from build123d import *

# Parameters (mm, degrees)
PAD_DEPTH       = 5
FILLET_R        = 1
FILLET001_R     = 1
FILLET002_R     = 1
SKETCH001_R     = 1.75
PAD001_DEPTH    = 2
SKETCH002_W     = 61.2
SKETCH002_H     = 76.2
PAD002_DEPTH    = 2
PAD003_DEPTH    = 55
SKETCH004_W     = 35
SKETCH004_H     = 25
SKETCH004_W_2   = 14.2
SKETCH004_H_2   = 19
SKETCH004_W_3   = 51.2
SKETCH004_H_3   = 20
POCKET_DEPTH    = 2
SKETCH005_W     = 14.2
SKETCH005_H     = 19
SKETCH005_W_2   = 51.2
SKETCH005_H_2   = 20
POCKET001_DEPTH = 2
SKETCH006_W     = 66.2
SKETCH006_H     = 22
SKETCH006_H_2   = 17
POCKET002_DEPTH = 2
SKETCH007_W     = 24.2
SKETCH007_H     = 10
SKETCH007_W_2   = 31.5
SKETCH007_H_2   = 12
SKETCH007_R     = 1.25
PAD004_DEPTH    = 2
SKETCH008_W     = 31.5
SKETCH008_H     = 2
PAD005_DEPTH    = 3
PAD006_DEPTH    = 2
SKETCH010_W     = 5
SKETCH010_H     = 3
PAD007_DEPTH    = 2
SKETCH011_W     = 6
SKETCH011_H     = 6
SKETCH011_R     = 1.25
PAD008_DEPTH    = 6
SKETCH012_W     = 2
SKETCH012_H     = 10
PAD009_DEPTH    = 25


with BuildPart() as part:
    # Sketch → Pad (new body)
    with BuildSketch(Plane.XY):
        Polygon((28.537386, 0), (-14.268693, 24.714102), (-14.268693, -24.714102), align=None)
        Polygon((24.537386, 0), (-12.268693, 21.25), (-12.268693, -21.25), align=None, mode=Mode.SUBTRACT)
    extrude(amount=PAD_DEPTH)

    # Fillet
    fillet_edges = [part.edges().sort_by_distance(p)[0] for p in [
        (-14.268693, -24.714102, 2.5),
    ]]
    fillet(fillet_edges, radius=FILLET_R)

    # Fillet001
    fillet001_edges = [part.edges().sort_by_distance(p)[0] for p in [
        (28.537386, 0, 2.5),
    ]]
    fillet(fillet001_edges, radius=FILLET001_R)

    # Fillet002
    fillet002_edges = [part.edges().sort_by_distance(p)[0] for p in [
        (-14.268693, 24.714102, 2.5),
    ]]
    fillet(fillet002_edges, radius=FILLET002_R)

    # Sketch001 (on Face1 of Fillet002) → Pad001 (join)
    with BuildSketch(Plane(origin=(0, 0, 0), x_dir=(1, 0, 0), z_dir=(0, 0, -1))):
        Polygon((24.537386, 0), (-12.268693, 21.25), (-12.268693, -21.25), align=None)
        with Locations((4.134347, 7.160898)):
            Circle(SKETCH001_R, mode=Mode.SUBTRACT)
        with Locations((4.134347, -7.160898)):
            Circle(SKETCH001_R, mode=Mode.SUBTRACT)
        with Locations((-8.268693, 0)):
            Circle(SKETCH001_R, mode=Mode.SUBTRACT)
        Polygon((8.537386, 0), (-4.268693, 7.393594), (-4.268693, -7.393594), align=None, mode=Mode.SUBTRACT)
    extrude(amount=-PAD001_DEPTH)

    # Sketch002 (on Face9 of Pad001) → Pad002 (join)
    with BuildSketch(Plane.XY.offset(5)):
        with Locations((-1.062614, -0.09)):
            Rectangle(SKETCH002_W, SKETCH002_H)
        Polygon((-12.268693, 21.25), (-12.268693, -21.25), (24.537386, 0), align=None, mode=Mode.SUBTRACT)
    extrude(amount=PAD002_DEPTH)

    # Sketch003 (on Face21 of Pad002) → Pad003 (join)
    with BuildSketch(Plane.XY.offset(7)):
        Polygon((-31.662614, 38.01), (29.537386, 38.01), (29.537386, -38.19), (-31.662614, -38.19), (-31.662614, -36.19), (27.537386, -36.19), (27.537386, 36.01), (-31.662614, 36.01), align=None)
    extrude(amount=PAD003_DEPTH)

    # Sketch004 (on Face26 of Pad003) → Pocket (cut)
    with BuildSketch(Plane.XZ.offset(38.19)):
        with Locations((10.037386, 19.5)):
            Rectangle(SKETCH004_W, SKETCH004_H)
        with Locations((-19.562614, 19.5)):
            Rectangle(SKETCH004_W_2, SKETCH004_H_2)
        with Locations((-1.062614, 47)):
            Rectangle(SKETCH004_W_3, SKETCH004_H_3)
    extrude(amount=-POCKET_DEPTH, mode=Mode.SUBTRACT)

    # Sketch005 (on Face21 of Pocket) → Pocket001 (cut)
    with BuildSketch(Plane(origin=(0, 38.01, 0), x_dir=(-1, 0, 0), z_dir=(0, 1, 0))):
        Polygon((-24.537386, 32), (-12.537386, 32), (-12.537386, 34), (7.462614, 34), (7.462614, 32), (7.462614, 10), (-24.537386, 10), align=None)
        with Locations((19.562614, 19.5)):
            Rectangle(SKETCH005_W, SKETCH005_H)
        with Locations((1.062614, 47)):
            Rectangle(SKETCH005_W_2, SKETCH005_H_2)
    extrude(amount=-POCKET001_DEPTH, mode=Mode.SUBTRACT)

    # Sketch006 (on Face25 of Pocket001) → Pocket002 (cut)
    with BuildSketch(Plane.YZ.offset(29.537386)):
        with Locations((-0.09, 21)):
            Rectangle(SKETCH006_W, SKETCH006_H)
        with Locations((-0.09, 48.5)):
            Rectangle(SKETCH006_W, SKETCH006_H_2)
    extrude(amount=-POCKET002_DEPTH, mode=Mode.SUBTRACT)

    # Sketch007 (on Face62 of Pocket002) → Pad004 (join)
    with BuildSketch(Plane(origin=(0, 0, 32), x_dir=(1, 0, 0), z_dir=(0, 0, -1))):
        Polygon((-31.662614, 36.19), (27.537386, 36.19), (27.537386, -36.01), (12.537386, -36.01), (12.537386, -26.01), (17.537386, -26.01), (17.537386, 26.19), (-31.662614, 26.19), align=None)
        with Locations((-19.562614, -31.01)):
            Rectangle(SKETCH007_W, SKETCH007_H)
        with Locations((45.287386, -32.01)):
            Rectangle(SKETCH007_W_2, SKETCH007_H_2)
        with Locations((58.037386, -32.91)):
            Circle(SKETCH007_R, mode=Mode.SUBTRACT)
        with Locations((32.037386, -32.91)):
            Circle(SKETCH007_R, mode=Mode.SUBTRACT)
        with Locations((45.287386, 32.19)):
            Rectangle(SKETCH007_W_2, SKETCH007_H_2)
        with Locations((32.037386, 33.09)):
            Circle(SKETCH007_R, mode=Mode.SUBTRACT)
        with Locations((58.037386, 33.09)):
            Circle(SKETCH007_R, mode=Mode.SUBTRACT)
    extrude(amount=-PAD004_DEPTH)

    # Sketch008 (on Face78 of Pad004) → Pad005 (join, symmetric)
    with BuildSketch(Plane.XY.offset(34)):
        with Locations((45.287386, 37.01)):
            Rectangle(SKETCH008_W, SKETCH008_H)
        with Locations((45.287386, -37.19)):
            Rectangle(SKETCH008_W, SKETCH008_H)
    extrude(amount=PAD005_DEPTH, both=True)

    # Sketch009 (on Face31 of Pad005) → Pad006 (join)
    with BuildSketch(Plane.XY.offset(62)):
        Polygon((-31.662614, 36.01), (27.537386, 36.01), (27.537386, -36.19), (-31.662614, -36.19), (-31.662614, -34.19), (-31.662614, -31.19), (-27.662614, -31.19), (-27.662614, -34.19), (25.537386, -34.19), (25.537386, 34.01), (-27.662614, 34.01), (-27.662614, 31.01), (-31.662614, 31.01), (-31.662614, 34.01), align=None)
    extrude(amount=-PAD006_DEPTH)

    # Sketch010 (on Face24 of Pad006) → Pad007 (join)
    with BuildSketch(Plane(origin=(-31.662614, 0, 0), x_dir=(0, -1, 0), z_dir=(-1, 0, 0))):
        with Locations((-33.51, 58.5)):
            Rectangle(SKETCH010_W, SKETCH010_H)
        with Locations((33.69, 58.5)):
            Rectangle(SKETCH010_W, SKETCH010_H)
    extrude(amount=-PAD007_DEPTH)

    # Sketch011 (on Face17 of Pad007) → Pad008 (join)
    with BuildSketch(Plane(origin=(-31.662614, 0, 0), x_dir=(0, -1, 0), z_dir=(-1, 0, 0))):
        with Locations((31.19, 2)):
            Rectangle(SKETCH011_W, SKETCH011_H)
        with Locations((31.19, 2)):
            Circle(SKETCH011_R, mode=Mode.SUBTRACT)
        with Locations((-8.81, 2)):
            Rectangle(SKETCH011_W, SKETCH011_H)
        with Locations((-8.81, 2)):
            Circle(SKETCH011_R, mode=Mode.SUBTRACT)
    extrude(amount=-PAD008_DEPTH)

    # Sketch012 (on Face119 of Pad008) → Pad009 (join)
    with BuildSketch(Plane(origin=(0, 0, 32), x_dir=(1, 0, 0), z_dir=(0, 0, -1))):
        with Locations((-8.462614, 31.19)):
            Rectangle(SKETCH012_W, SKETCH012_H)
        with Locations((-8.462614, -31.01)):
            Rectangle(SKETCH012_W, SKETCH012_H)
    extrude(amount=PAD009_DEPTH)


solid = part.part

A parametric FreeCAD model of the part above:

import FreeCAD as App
import Part
import Sketcher
from FreeCAD import Vector
Q = App.Units.Quantity


def edges_at(feature, points):
    """Names of the edges that pass closest to the given points."""
    edges = feature.Shape.Edges
    near = lambda p: min(range(len(edges)), key=lambda i: edges[i].distToShape(Part.Vertex(*p))[0])
    return sorted({f"Edge{near(p) + 1}" for p in points})


def add_polygon(sketch, points):
    """Adds a closed chain of lines whose ends are joined by coincident constraints."""
    first, n = sketch.GeometryCount, len(points)
    for a, b in zip(points, points[1:] + points[:1]):
        sketch.addGeometry(Part.LineSegment(App.Vector(*a, 0), App.Vector(*b, 0)), False)
    for i in range(n):
        sketch.addConstraint(Sketcher.Constraint("Coincident", first + i, 2, first + (i + 1) % n, 1))

doc = App.newDocument("Part")
body = doc.addObject("PartDesign::Body", "Body")

# Sketch on XY plane
sketch1 = body.newObject("Sketcher::SketchObject", "Sketch")
sketch1.AttachmentSupport = (doc.getObject("XY_Plane"), [""])
sketch1.MapMode = "FlatFace"
add_polygon(sketch1, [(29, 0), (-14, 25), (-14, -25)])  # lines 0-2
add_polygon(sketch1, [(-12, 21), (25, 0), (-12, -21)])  # lines 3-5
sketch1.addConstraint([
    Sketcher.Constraint("Vertical", 1),
    Sketcher.Constraint("Vertical", 5),
    Sketcher.Constraint("PointOnObject", 2, 2, -1),
    Sketcher.Constraint("PointOnObject", 3, 2, -1),
    Sketcher.Constraint("Parallel", 0, 3),
    Sketcher.Constraint("Parallel", 2, 4),
    Sketcher.Constraint("Equal", 0, 2),
    Sketcher.Constraint("Angle", 0, Q("149.999999 deg")),
    Sketcher.Constraint("DistanceY", 5, 1, 5, 2, Q("42.5 mm")),
    Sketcher.Constraint("DistanceX", 3, 2, 2, 2, Q("4 mm")),
    Sketcher.Constraint("DistanceX", 1, 2, 4, 2, Q("2 mm")),
    Sketcher.Constraint("DistanceX", 0, 2, -1, 1, Q("14.268693 mm")),
])
pad1 = body.newObject("PartDesign::Pad", "Pad")
pad1.Profile = sketch1
pad1.Length = 5
doc.recompute()

fillet = body.newObject("PartDesign::Fillet", "Fillet")
fillet.Base = (pad1, edges_at(pad1, [(-14.269, -24.714, 2.5)]))
fillet.Radius = 1
doc.recompute()

fillet2 = body.newObject("PartDesign::Fillet", "Fillet001")
fillet2.Base = (fillet, edges_at(fillet, [(28.537, 0, 2.5)]))
fillet2.Radius = 1
doc.recompute()

fillet3 = body.newObject("PartDesign::Fillet", "Fillet002")
fillet3.Base = (fillet2, edges_at(fillet2, [(-14.269, 24.714, 2.5)]))
fillet3.Radius = 1

# Sketch on XY plane
sketch2 = body.newObject("Sketcher::SketchObject", "Sketch001")
sketch2.AttachmentSupport = (doc.getObject("XY_Plane"), [""])
sketch2.MapMode = "FlatFace"
add_polygon(sketch2, [(24.5, 0), (-12.3, -21.2), (-12.3, 21.2)])  # lines 0-2
sketch2.addGeometry(Part.Circle(Vector(4.1, 7.2, 0), Vector(0, 0, 1), 1.8), False)  # 3
sketch2.addGeometry(Part.Circle(Vector(-8.3, 0, 0), Vector(0, 0, 1), 1.8), False)  # 4
add_polygon(sketch2, [(-4.3, -7.4), (8.5, 0), (-4.3, 7.4)])  # lines 5-7
sketch2.addGeometry(Part.Circle(Vector(4.1, -7.2, 0), Vector(0, 0, 1), 1.8), False)  # 8
sketch2.addConstraint([
    Sketcher.Constraint("Vertical", 1),
    Sketcher.Constraint("Vertical", 7),
    Sketcher.Constraint("Equal", 3, 4),
    Sketcher.Constraint("Equal", 4, 8),
    Sketcher.Constraint("Symmetric", 3, 3, 8, 3, -1),
    Sketcher.Constraint("PointOnObject", 4, 3, -1),
    Sketcher.Constraint("PointOnObject", 2, 2, -1),
    Sketcher.Constraint("PointOnObject", 5, 2, -1),
    Sketcher.Constraint("Parallel", 0, 5),
    Sketcher.Constraint("Parallel", 2, 6),
    Sketcher.Constraint("Equal", 0, 2),
    Sketcher.Constraint("Diameter", 3, Q("3.5 mm")),
    Sketcher.Constraint("Angle", 0, Q("-150 deg")),
    Sketcher.Constraint("DistanceY", 1, 1, 1, 2, Q("42.5 mm")),
    Sketcher.Constraint("DistanceX", 0, 2, 4, 3, Q("4 mm")),
    Sketcher.Constraint("DistanceX", 5, 2, 2, 2, Q("16 mm")),
    Sketcher.Constraint("DistanceX", 4, 3, 6, 2, Q("4 mm")),
    Sketcher.Constraint("DistanceY", -1, 1, 3, 3, Q("7.160898 mm")),
    Sketcher.Constraint("DistanceX", 4, 3, 3, 3, Q("12.40304 mm")),
    Sketcher.Constraint("DistanceX", -1, 1, 3, 3, Q("4.134347 mm")),
])
pad2 = body.newObject("PartDesign::Pad", "Pad001")
pad2.Profile = sketch2
pad2.Length = 2

# Sketch on XY plane
sketch3 = body.newObject("Sketcher::SketchObject", "Sketch002")
sketch3.AttachmentSupport = (doc.getObject("XY_Plane"), [""])
sketch3.MapMode = "FlatFace"
sketch3.AttachmentOffset = App.Placement(Vector(0, 0, 5), App.Rotation())
add_polygon(sketch3, [(-32, 38), (-32, -38), (30, -38), (30, 38)])  # lines 0-3
add_polygon(sketch3, [(-12, -21), (-12, 21), (25, 0)])  # lines 4-6
sketch3.addConstraint([
    Sketcher.Constraint("Vertical", 0),
    Sketcher.Constraint("Horizontal", 1),
    Sketcher.Constraint("Vertical", 2),
    Sketcher.Constraint("Horizontal", 3),
    Sketcher.Constraint("Vertical", 4),
    Sketcher.Constraint("PointOnObject", 5, 2, -1),
    Sketcher.Constraint("Equal", 5, 6),
    Sketcher.Constraint("Angle", 5, Q("-30 deg")),
    Sketcher.Constraint("DistanceX", 1, 1, 1, 2, Q("61.2 mm")),
    Sketcher.Constraint("DistanceY", 0, 2, 0, 1, Q("76.2 mm")),
    Sketcher.Constraint("DistanceY", 4, 1, 4, 2, Q("42.5 mm")),
    Sketcher.Constraint("DistanceX", 5, 2, 2, 2, Q("5 mm")),
    Sketcher.Constraint("DistanceY", 0, 2, -1, 1, Q("38.19 mm")),
    Sketcher.Constraint("DistanceX", 0, 2, -1, 1, Q("31.662614 mm")),
])
pad3 = body.newObject("PartDesign::Pad", "Pad002")
pad3.Profile = sketch3
pad3.Length = 2

# Sketch on XY plane
sketch4 = body.newObject("Sketcher::SketchObject", "Sketch003")
sketch4.AttachmentSupport = (doc.getObject("XY_Plane"), [""])
sketch4.MapMode = "FlatFace"
sketch4.AttachmentOffset = App.Placement(Vector(0, 0, 7), App.Rotation())
add_polygon(sketch4, [(29.5, 38), (-31.7, 38), (-31.7, 36), (27.5, 36), (27.5, -36.2), (-31.7, -36.2), (-31.7, -38.2), (29.5, -38.2)])  # lines 0-7
sketch4.addConstraint([
    Sketcher.Constraint("Horizontal", 0),
    Sketcher.Constraint("Vertical", 1),
    Sketcher.Constraint("Horizontal", 2),
    Sketcher.Constraint("Vertical", 3),
    Sketcher.Constraint("Horizontal", 4),
    Sketcher.Constraint("Vertical", 5),
    Sketcher.Constraint("Horizontal", 6),
    Sketcher.Constraint("Vertical", 7),
    Sketcher.Constraint("Vertical", 1, 2, 4, 2),
    Sketcher.Constraint("Equal", 1, 5),
    Sketcher.Constraint("DistanceY", 1, 2, 1, 1, Q("2 mm")),
    Sketcher.Constraint("DistanceX", 0, 2, 0, 1, Q("61.2 mm")),
    Sketcher.Constraint("DistanceX", 2, 1, 2, 2, Q("59.2 mm")),
    Sketcher.Constraint("DistanceY", 3, 2, 3, 1, Q("72.2 mm")),
    Sketcher.Constraint("DistanceY", -1, 1, 0, 2, Q("38.01 mm")),
    Sketcher.Constraint("DistanceX", 0, 2, -1, 1, Q("31.662614 mm")),
])
pad4 = body.newObject("PartDesign::Pad", "Pad003")
pad4.Profile = sketch4
pad4.Length = 55

# Sketch on XZ plane
sketch5 = body.newObject("Sketcher::SketchObject", "Sketch004")
sketch5.AttachmentSupport = (doc.getObject("XZ_Plane"), [""])
sketch5.MapMode = "FlatFace"
sketch5.AttachmentOffset = App.Placement(Vector(0, 0, 38.19), App.Rotation())
add_polygon(sketch5, [(-7, 32), (-7, 7), (28, 7), (28, 32)])  # lines 0-3
add_polygon(sketch5, [(-27, 29), (-27, 10), (-12, 10), (-12, 29)])  # lines 4-7
add_polygon(sketch5, [(-27, 57), (-27, 37), (25, 37), (25, 57)])  # lines 8-11
sketch5.addConstraint([
    Sketcher.Constraint("Vertical", 0),
    Sketcher.Constraint("Horizontal", 1),
    Sketcher.Constraint("Vertical", 2),
    Sketcher.Constraint("Horizontal", 3),
    Sketcher.Constraint("Vertical", 4),
    Sketcher.Constraint("Horizontal", 5),
    Sketcher.Constraint("Vertical", 6),
    Sketcher.Constraint("Horizontal", 7),
    Sketcher.Constraint("Vertical", 8),
    Sketcher.Constraint("Horizontal", 9),
    Sketcher.Constraint("Vertical", 10),
    Sketcher.Constraint("Horizontal", 11),
    Sketcher.Constraint("Vertical", 7, 2, 8, 2),
    Sketcher.Constraint("DistanceX", 1, 1, 1, 2, Q("35 mm")),
    Sketcher.Constraint("DistanceY", 0, 2, 0, 1, Q("25 mm")),
    Sketcher.Constraint("DistanceY", 4, 2, 4, 1, Q("19 mm")),
    Sketcher.Constraint("DistanceY", 8, 2, 8, 1, Q("20 mm")),
    Sketcher.Constraint("DistanceX", 5, 1, 5, 2, Q("14.2 mm")),
    Sketcher.Constraint("DistanceX", 9, 1, 9, 2, Q("51.2 mm")),
    Sketcher.Constraint("DistanceY", -1, 1, 0, 2, Q("7 mm")),
    Sketcher.Constraint("DistanceY", -1, 1, 4, 2, Q("10 mm")),
    Sketcher.Constraint("DistanceY", -1, 1, 8, 2, Q("37 mm")),
    Sketcher.Constraint("DistanceX", 5, 2, 0, 2, Q("5 mm")),
    Sketcher.Constraint("DistanceX", 0, 2, -1, 1, Q("7.462614 mm")),
])
pocket1 = body.newObject("PartDesign::Pocket", "Pocket")
pocket1.Profile = sketch5
pocket1.Length = 2

# Sketch on XZ plane
sketch6 = body.newObject("Sketcher::SketchObject", "Sketch005")
sketch6.AttachmentSupport = (doc.getObject("XZ_Plane"), [""])
sketch6.MapMode = "FlatFace"
sketch6.AttachmentOffset = App.Placement(Vector(0, 0, -38.01), App.Rotation())
add_polygon(sketch6, [(12.5, 32), (24.5, 32), (24.5, 10), (-7.5, 10), (-7.5, 34), (12.5, 34)])  # lines 0-5
add_polygon(sketch6, [(-12.5, 29), (-12.5, 10), (-26.7, 10), (-26.7, 29)])  # lines 6-9
add_polygon(sketch6, [(24.5, 57), (24.5, 37), (-26.7, 37), (-26.7, 57)])  # lines 10-13
sketch6.addConstraint([
    Sketcher.Constraint("Horizontal", 0),
    Sketcher.Constraint("Vertical", 1),
    Sketcher.Constraint("Horizontal", 2),
    Sketcher.Constraint("Vertical", 3),
    Sketcher.Constraint("Horizontal", 4),
    Sketcher.Constraint("Vertical", 5),
    Sketcher.Constraint("Vertical", 6),
    Sketcher.Constraint("Horizontal", 7),
    Sketcher.Constraint("Vertical", 8),
    Sketcher.Constraint("Horizontal", 9),
    Sketcher.Constraint("Vertical", 10),
    Sketcher.Constraint("Horizontal", 11),
    Sketcher.Constraint("Vertical", 12),
    Sketcher.Constraint("Horizontal", 13),
    Sketcher.Constraint("Horizontal", 2, 2, 6, 2),
    Sketcher.Constraint("Vertical", 1, 2, 10, 2),
    Sketcher.Constraint("Vertical", 8, 2, 11, 2),
    Sketcher.Constraint("Equal", 4, 10),
    Sketcher.Constraint("DistanceX", 0, 1, 0, 2, Q("12 mm")),
    Sketcher.Constraint("DistanceX", 2, 2, 2, 1, Q("32 mm")),
    Sketcher.Constraint("DistanceY", 1, 2, 1, 1, Q("22 mm")),
    Sketcher.Constraint("DistanceY", 3, 1, 3, 2, Q("24 mm")),
    Sketcher.Constraint("DistanceY", 6, 2, 6, 1, Q("19 mm")),
    Sketcher.Constraint("DistanceX", 7, 2, 7, 1, Q("14.2 mm")),
    Sketcher.Constraint("DistanceX", 11, 2, 11, 1, Q("51.2 mm")),
    Sketcher.Constraint("DistanceY", -1, 1, 0, 2, Q("32 mm")),
    Sketcher.Constraint("DistanceY", -1, 1, 10, 2, Q("37 mm")),
    Sketcher.Constraint("DistanceX", -1, 1, 0, 2, Q("24.537386 mm")),
])
pocket2 = body.newObject("PartDesign::Pocket", "Pocket001")
pocket2.Profile = sketch6
pocket2.Length = 2
pocket2.Reversed = True

# Sketch on YZ plane
sketch7 = body.newObject("Sketcher::SketchObject", "Sketch006")
sketch7.AttachmentSupport = (doc.getObject("YZ_Plane"), [""])
sketch7.MapMode = "FlatFace"
sketch7.AttachmentOffset = App.Placement(Vector(0, 0, 29.537386), App.Rotation())
add_polygon(sketch7, [(-33, 32), (-33, 10), (33, 10), (33, 32)])  # lines 0-3
add_polygon(sketch7, [(-33, 57), (-33, 40), (33, 40), (33, 57)])  # lines 4-7
sketch7.addConstraint([
    Sketcher.Constraint("Vertical", 0),
    Sketcher.Constraint("Horizontal", 1),
    Sketcher.Constraint("Vertical", 2),
    Sketcher.Constraint("Horizontal", 3),
    Sketcher.Constraint("Vertical", 4),
    Sketcher.Constraint("Horizontal", 5),
    Sketcher.Constraint("Vertical", 6),
    Sketcher.Constraint("Horizontal", 7),
    Sketcher.Constraint("Vertical", 3, 2, 4, 2),
    Sketcher.Constraint("Vertical", 2, 2, 5, 2),
    Sketcher.Constraint("DistanceY", 0, 2, 0, 1, Q("22 mm")),
    Sketcher.Constraint("DistanceY", 4, 2, 4, 1, Q("17 mm")),
    Sketcher.Constraint("DistanceX", 1, 1, 1, 2, Q("66.2 mm")),
    Sketcher.Constraint("DistanceY", -1, 1, 0, 2, Q("10 mm")),
    Sketcher.Constraint("DistanceY", -1, 1, 4, 2, Q("40 mm")),
    Sketcher.Constraint("DistanceX", 0, 2, -1, 1, Q("33.19 mm")),
])
pocket3 = body.newObject("PartDesign::Pocket", "Pocket002")
pocket3.Profile = sketch7
pocket3.Length = 2

# Sketch on XY plane
sketch8 = body.newObject("Sketcher::SketchObject", "Sketch007")
sketch8.AttachmentSupport = (doc.getObject("XY_Plane"), [""])
sketch8.MapMode = "FlatFace"
sketch8.AttachmentOffset = App.Placement(Vector(0, 0, 32), App.Rotation())
add_polygon(sketch8, [(27.5, -36.2), (-31.7, -36.2), (-31.7, -26.2), (17.5, -26.2), (17.5, 26), (12.5, 26), (12.5, 36), (27.5, 36)])  # lines 0-7
add_polygon(sketch8, [(-31.7, 26), (-31.7, 36), (-7.5, 36), (-7.5, 26)])  # lines 8-11
add_polygon(sketch8, [(29.5, 26), (29.5, 38), (61, 38), (61, 26)])  # lines 12-15
sketch8.addGeometry(Part.Circle(Vector(32, 32.9, 0), Vector(0, 0, 1), 1.2), False)  # 16
sketch8.addGeometry(Part.Circle(Vector(58, 32.9, 0), Vector(0, 0, 1), 1.2), False)  # 17
add_polygon(sketch8, [(29.5, -38.2), (29.5, -26.2), (61, -26.2), (61, -38.2)])  # lines 18-21
sketch8.addGeometry(Part.Circle(Vector(32, -33.1, 0), Vector(0, 0, 1), 1.2), False)  # 22
sketch8.addGeometry(Part.Circle(Vector(58, -33.1, 0), Vector(0, 0, 1), 1.2), False)  # 23
sketch8.addConstraint([
    Sketcher.Constraint("Horizontal", 0),
    Sketcher.Constraint("Vertical", 1),
    Sketcher.Constraint("Horizontal", 2),
    Sketcher.Constraint("Vertical", 3),
    Sketcher.Constraint("Horizontal", 4),
    Sketcher.Constraint("Vertical", 5),
    Sketcher.Constraint("Horizontal", 6),
    Sketcher.Constraint("Vertical", 7),
    Sketcher.Constraint("Vertical", 8),
    Sketcher.Constraint("Horizontal", 9),
    Sketcher.Constraint("Vertical", 10),
    Sketcher.Constraint("Horizontal", 11),
    Sketcher.Constraint("Vertical", 12),
    Sketcher.Constraint("Horizontal", 13),
    Sketcher.Constraint("Vertical", 14),
    Sketcher.Constraint("Horizontal", 15),
    Sketcher.Constraint("Vertical", 18),
    Sketcher.Constraint("Horizontal", 19),
    Sketcher.Constraint("Vertical", 20),
    Sketcher.Constraint("Horizontal", 21),
    Sketcher.Constraint("Equal", 16, 17),
    Sketcher.Constraint("Equal", 17, 22),
    Sketcher.Constraint("Equal", 22, 23),
    Sketcher.Constraint("Horizontal", 16, 3, 17, 3),
    Sketcher.Constraint("Horizontal", 22, 3, 23, 3),
    Sketcher.Constraint("Horizontal", 6, 2, 8, 2),
    Sketcher.Constraint("Horizontal", 4, 2, 10, 2),
    Sketcher.Constraint("Horizontal", 11, 2, 14, 2),
    Sketcher.Constraint("Horizontal", 2, 2, 18, 2),
    Sketcher.Constraint("Vertical", 16, 3, 22, 3),
    Sketcher.Constraint("Vertical", 17, 3, 23, 3),
    Sketcher.Constraint("Vertical", 1, 2, 8, 2),
    Sketcher.Constraint("Vertical", 15, 2, 18, 2),
    Sketcher.Constraint("Vertical", 14, 2, 19, 2),
    Sketcher.Constraint("Equal", 1, 5),
    Sketcher.Constraint("Equal", 14, 18),
    Sketcher.Constraint("Diameter", 16, Q("2.5 mm")),
    Sketcher.Constraint("DistanceX", 4, 2, 4, 1, Q("5 mm")),
    Sketcher.Constraint("DistanceX", 6, 1, 6, 2, Q("15 mm")),
    Sketcher.Constraint("DistanceY", 1, 1, 1, 2, Q("10 mm")),
    Sketcher.Constraint("DistanceY", 12, 1, 12, 2, Q("12 mm")),
    Sketcher.Constraint("DistanceX", 0, 2, 0, 1, Q("59.2 mm")),
    Sketcher.Constraint("DistanceX", 9, 1, 9, 2, Q("24.2 mm")),
    Sketcher.Constraint("DistanceX", 13, 1, 13, 2, Q("31.5 mm")),
    Sketcher.Constraint("DistanceY", 3, 1, 3, 2, Q("52.2 mm")),
    Sketcher.Constraint("DistanceX", 16, 3, 17, 3, Q("26 mm")),
    Sketcher.Constraint("DistanceY", 22, 3, 16, 3, Q("66 mm")),
    Sketcher.Constraint("DistanceX", 6, 2, 12, 2, Q("2 mm")),
    Sketcher.Constraint("DistanceX", 17, 3, 13, 2, Q("3 mm")),
    Sketcher.Constraint("DistanceY", 0, 2, 22, 3, Q("3.1 mm")),
    Sketcher.Constraint("DistanceY", -1, 1, 16, 3, Q("32.91 mm")),
    Sketcher.Constraint("DistanceX", -1, 1, 16, 3, Q("32.037386 mm")),
])
pad5 = body.newObject("PartDesign::Pad", "Pad004")
pad5.Profile = sketch8
pad5.Length = 2

# Sketch on XY plane
sketch9 = body.newObject("Sketcher::SketchObject", "Sketch008")
sketch9.AttachmentSupport = (doc.getObject("XY_Plane"), [""])
sketch9.MapMode = "FlatFace"
sketch9.AttachmentOffset = App.Placement(Vector(0, 0, 34), App.Rotation())
add_polygon(sketch9, [(29.5, 38), (29.5, 36), (61, 36), (61, 38)])  # lines 0-3
add_polygon(sketch9, [(29.5, -36.2), (29.5, -38.2), (61, -38.2), (61, -36.2)])  # lines 4-7
sketch9.addConstraint([
    Sketcher.Constraint("Vertical", 0),
    Sketcher.Constraint("Horizontal", 1),
    Sketcher.Constraint("Vertical", 2),
    Sketcher.Constraint("Horizontal", 3),
    Sketcher.Constraint("Vertical", 4),
    Sketcher.Constraint("Horizontal", 5),
    Sketcher.Constraint("Vertical", 6),
    Sketcher.Constraint("Horizontal", 7),
    Sketcher.Constraint("Vertical", 3, 2, 4, 2),
    Sketcher.Constraint("Vertical", 2, 2, 5, 2),
    Sketcher.Constraint("Equal", 2, 4),
    Sketcher.Constraint("DistanceY", 0, 2, 0, 1, Q("2 mm")),
    Sketcher.Constraint("DistanceX", 1, 1, 1, 2, Q("31.5 mm")),
    Sketcher.Constraint("DistanceY", 4, 2, 0, 2, Q("74.2 mm")),
    Sketcher.Constraint("DistanceY", -1, 1, 0, 2, Q("36.01 mm")),
    Sketcher.Constraint("DistanceX", -1, 1, 0, 2, Q("29.537386 mm")),
])
pad6 = body.newObject("PartDesign::Pad", "Pad005")
pad6.Profile = sketch9
pad6.Length = 6
pad6.Midplane = True

# Sketch on XY plane
sketch10 = body.newObject("Sketcher::SketchObject", "Sketch009")
sketch10.AttachmentSupport = (doc.getObject("XY_Plane"), [""])
sketch10.MapMode = "FlatFace"
sketch10.AttachmentOffset = App.Placement(Vector(0, 0, 62), App.Rotation())
add_polygon(sketch10, [(27.5, 36), (-31.7, 36), (-31.7, 31), (-27.7, 31), (-27.7, 34), (25.5, 34), (25.5, -34.2), (-27.7, -34.2), (-27.7, -31.2), (-31.7, -31.2), (-31.7, -36.2), (27.5, -36.2)])  # lines 0-11
sketch10.addConstraint([
    Sketcher.Constraint("Horizontal", 0),
    Sketcher.Constraint("Vertical", 1),
    Sketcher.Constraint("Horizontal", 2),
    Sketcher.Constraint("Vertical", 3),
    Sketcher.Constraint("Horizontal", 4),
    Sketcher.Constraint("Vertical", 5),
    Sketcher.Constraint("Horizontal", 6),
    Sketcher.Constraint("Vertical", 7),
    Sketcher.Constraint("Horizontal", 8),
    Sketcher.Constraint("Vertical", 9),
    Sketcher.Constraint("Horizontal", 10),
    Sketcher.Constraint("Vertical", 11),
    Sketcher.Constraint("Vertical", 3, 2, 6, 2),
    Sketcher.Constraint("Vertical", 1, 2, 8, 2),
    Sketcher.Constraint("Equal", 3, 7),
    Sketcher.Constraint("Equal", 1, 9),
    Sketcher.Constraint("DistanceX", 2, 1, 2, 2, Q("4 mm")),
    Sketcher.Constraint("DistanceY", 1, 2, 1, 1, Q("5 mm")),
    Sketcher.Constraint("DistanceY", 3, 1, 3, 2, Q("3 mm")),
    Sketcher.Constraint("DistanceX", 0, 2, 0, 1, Q("59.2 mm")),
    Sketcher.Constraint("DistanceX", 4, 1, 4, 2, Q("53.2 mm")),
    Sketcher.Constraint("DistanceY", 5, 2, 5, 1, Q("68.2 mm")),
    Sketcher.Constraint("DistanceY", -1, 1, 0, 2, Q("36.01 mm")),
    Sketcher.Constraint("DistanceX", 0, 2, -1, 1, Q("31.662614 mm")),
])
pad7 = body.newObject("PartDesign::Pad", "Pad006")
pad7.Profile = sketch10
pad7.Length = 2
pad7.Reversed = True

# Sketch on YZ plane
sketch11 = body.newObject("Sketcher::SketchObject", "Sketch010")
sketch11.AttachmentSupport = (doc.getObject("YZ_Plane"), [""])
sketch11.MapMode = "FlatFace"
sketch11.AttachmentOffset = App.Placement(Vector(0, 0, -31.662614), App.Rotation())
add_polygon(sketch11, [(36, 60), (36, 57), (31, 57), (31, 60)])  # lines 0-3
add_polygon(sketch11, [(-31.2, 60), (-31.2, 57), (-36.2, 57), (-36.2, 60)])  # lines 4-7
sketch11.addConstraint([
    Sketcher.Constraint("Vertical", 0),
    Sketcher.Constraint("Horizontal", 1),
    Sketcher.Constraint("Vertical", 2),
    Sketcher.Constraint("Horizontal", 3),
    Sketcher.Constraint("Vertical", 4),
    Sketcher.Constraint("Horizontal", 5),
    Sketcher.Constraint("Vertical", 6),
    Sketcher.Constraint("Horizontal", 7),
    Sketcher.Constraint("Horizontal", 1, 2, 4, 2),
    Sketcher.Constraint("Horizontal", 3, 2, 6, 2),
    Sketcher.Constraint("Equal", 3, 5),
    Sketcher.Constraint("DistanceX", 1, 2, 1, 1, Q("5 mm")),
    Sketcher.Constraint("DistanceY", 0, 2, 0, 1, Q("3 mm")),
    Sketcher.Constraint("DistanceY", -1, 1, 0, 2, Q("57 mm")),
    Sketcher.Constraint("DistanceX", 4, 2, 1, 2, Q("62.2 mm")),
    Sketcher.Constraint("DistanceX", -1, 1, 0, 2, Q("36.01 mm")),
])
pad8 = body.newObject("PartDesign::Pad", "Pad007")
pad8.Profile = sketch11
pad8.Length = 2

# Sketch on YZ plane
sketch12 = body.newObject("Sketcher::SketchObject", "Sketch011")
sketch12.AttachmentSupport = (doc.getObject("YZ_Plane"), [""])
sketch12.MapMode = "FlatFace"
sketch12.AttachmentOffset = App.Placement(Vector(0, 0, -31.662614), App.Rotation())
add_polygon(sketch12, [(-28.2, 5), (-28.2, -1), (-34.2, -1), (-34.2, 5)])  # lines 0-3
sketch12.addGeometry(Part.Circle(Vector(-31.2, 2, 0), Vector(0, 0, 1), 1.2), False)  # 4
add_polygon(sketch12, [(11.8, 5), (11.8, -1), (5.8, -1), (5.8, 5)])  # lines 5-8
sketch12.addGeometry(Part.Circle(Vector(8.8, 2, 0), Vector(0, 0, 1), 1.2), False)  # 9
sketch12.addConstraint([
    Sketcher.Constraint("Vertical", 0),
    Sketcher.Constraint("Horizontal", 1),
    Sketcher.Constraint("Vertical", 2),
    Sketcher.Constraint("Horizontal", 3),
    Sketcher.Constraint("Vertical", 5),
    Sketcher.Constraint("Horizontal", 6),
    Sketcher.Constraint("Vertical", 7),
    Sketcher.Constraint("Horizontal", 8),
    Sketcher.Constraint("Equal", 4, 9),
    Sketcher.Constraint("Horizontal", 4, 3, 9, 3),
    Sketcher.Constraint("Horizontal", 1, 2, 5, 2),
    Sketcher.Constraint("Horizontal", 3, 2, 7, 2),
    Sketcher.Constraint("Equal", 3, 6),
    Sketcher.Constraint("Equal", 8, 0),
    Sketcher.Constraint("Diameter", 4, Q("2.5 mm")),
    Sketcher.Constraint("DistanceX", 1, 2, 1, 1, Q("6 mm")),
    Sketcher.Constraint("DistanceY", -1, 1, 4, 3, Q("2 mm")),
    Sketcher.Constraint("DistanceY", 0, 2, -1, 1, Q("1 mm")),
    Sketcher.Constraint("DistanceX", 4, 3, 9, 3, Q("40 mm")),
    Sketcher.Constraint("DistanceX", 4, 3, 0, 2, Q("3 mm")),
    Sketcher.Constraint("DistanceX", 9, 3, 5, 2, Q("3 mm")),
    Sketcher.Constraint("DistanceX", 4, 3, -1, 1, Q("31.19 mm")),
])
pad9 = body.newObject("PartDesign::Pad", "Pad008")
pad9.Profile = sketch12
pad9.Length = 6

# Sketch on XY plane
sketch13 = body.newObject("Sketcher::SketchObject", "Sketch012")
sketch13.AttachmentSupport = (doc.getObject("XY_Plane"), [""])
sketch13.MapMode = "FlatFace"
sketch13.AttachmentOffset = App.Placement(Vector(0, 0, 32), App.Rotation())
add_polygon(sketch13, [(-9.5, -36.2), (-9.5, -26.2), (-7.5, -26.2), (-7.5, -36.2)])  # lines 0-3
add_polygon(sketch13, [(-9.5, 26), (-9.5, 36), (-7.5, 36), (-7.5, 26)])  # lines 4-7
sketch13.addConstraint([
    Sketcher.Constraint("Vertical", 0),
    Sketcher.Constraint("Horizontal", 1),
    Sketcher.Constraint("Vertical", 2),
    Sketcher.Constraint("Horizontal", 3),
    Sketcher.Constraint("Vertical", 4),
    Sketcher.Constraint("Horizontal", 5),
    Sketcher.Constraint("Vertical", 6),
    Sketcher.Constraint("Horizontal", 7),
    Sketcher.Constraint("Vertical", 3, 2, 4, 2),
    Sketcher.Constraint("Vertical", 2, 2, 5, 2),
    Sketcher.Constraint("Equal", 2, 4),
    Sketcher.Constraint("DistanceX", 1, 1, 1, 2, Q("2 mm")),
    Sketcher.Constraint("DistanceY", 0, 1, 0, 2, Q("10 mm")),
    Sketcher.Constraint("DistanceY", 0, 2, 4, 2, Q("62.2 mm")),
    Sketcher.Constraint("DistanceY", 0, 2, -1, 1, Q("26.19 mm")),
    Sketcher.Constraint("DistanceX", 0, 2, -1, 1, Q("9.462614 mm")),
])
pad10 = body.newObject("PartDesign::Pad", "Pad009")
pad10.Profile = sketch13
pad10.Length = 25
pad10.Reversed = True

doc.recompute()
